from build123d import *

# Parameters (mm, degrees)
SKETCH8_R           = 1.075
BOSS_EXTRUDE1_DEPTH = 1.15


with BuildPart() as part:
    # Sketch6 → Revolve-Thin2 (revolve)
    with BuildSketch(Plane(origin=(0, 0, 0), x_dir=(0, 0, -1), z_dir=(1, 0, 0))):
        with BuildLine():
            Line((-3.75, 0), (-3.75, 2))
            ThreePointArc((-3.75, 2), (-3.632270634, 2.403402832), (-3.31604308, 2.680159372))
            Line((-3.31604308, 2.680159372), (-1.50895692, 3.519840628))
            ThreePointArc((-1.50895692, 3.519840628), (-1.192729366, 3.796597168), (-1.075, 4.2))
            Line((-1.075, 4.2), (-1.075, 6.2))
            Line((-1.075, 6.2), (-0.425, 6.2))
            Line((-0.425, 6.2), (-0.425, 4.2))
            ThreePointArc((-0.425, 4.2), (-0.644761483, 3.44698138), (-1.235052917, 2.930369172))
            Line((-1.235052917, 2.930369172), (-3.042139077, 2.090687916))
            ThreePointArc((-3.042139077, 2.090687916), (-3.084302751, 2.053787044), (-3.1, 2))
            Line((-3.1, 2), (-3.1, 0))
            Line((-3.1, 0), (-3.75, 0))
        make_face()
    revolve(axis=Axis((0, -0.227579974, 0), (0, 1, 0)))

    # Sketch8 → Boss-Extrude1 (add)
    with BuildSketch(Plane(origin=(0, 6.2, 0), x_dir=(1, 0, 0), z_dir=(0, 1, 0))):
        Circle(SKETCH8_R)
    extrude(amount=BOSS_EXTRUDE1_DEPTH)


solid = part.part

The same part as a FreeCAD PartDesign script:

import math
import FreeCAD as App
import Part
import Sketcher

doc = App.newDocument("Part")
params = doc.addObject("Spreadsheet::Sheet", "Params")
for row, (alias, value) in enumerate([
    ("sketch1_radius", "0.1 mm"),
    ("sketch1_radius2", "1.4 mm"),
    ("sketch1_width", "2 mm"),
    ("revolution_angle", "360 deg"),
    ("sketch2_diameter", "2.15 mm"),
    ("pad1_length", "1.15 mm"),
], start=1):
    params.set(f"A{row}", alias)
    params.set(f"B{row}", "=" + value)
    params.setAlias(f"B{row}", alias)

body = doc.addObject("PartDesign::Body", "Body")

# Sketch on YZ plane
sketch1 = body.newObject("Sketcher::SketchObject", "Sketch")
sketch1.AttachmentSupport = (doc.getObject("YZ_Plane"), [""])
sketch1.MapMode = "FlatFace"
sketch1.addGeometry(Part.LineSegment(App.Vector(2, 3.75, 0), App.Vector(0, 3.75, 0)), False)
sketch1.addGeometry(Part.LineSegment(App.Vector(0, 3.75, 0), App.Vector(0, 3.1, 0)), False)
sketch1.addGeometry(Part.LineSegment(App.Vector(0, 3.1, 0), App.Vector(2, 3.1, 0)), False)
sketch1.addGeometry(Part.ArcOfCircle(Part.Circle(App.Vector(2, 3, 0), App.Vector(0, 0, 1), 0.1), math.radians(25), math.radians(90)), False)
sketch1.addGeometry(Part.LineSegment(App.Vector(2.09, 3.04, 0), App.Vector(2.93, 1.24, 0)), False)
sketch1.addGeometry(Part.ArcOfCircle(Part.Circle(App.Vector(4.2, 1.83, 0), App.Vector(0, 0, 1), 1.4), math.radians(-155), math.radians(-90)), False)
sketch1.addGeometry(Part.LineSegment(App.Vector(4.2, 0.42, 0), App.Vector(6.2, 0.42, 0)), False)
sketch1.addGeometry(Part.LineSegment(App.Vector(6.2, 0.42, 0), App.Vector(6.2, 1.07, 0)), False)
sketch1.addGeometry(Part.LineSegment(App.Vector(6.2, 1.07, 0), App.Vector(4.2, 1.07, 0)), False)
sketch1.addGeometry(Part.ArcOfCircle(Part.Circle(App.Vector(4.2, 1.83, 0), App.Vector(0, 0, 1), 0.75), math.radians(-155), math.radians(-90)), False)
sketch1.addGeometry(Part.LineSegment(App.Vector(3.52, 1.51, 0), App.Vector(2.68, 3.32, 0)), False)
sketch1.addGeometry(Part.ArcOfCircle(Part.Circle(App.Vector(2, 3, 0), App.Vector(0, 0, 1), 0.75), math.radians(25), math.radians(90)), False)
sketch1.addConstraint(Sketcher.Constraint("Coincident", 0, 2, 1, 1))
sketch1.addConstraint(Sketcher.Constraint("Coincident", 1, 2, 2, 1))
sketch1.addConstraint(Sketcher.Constraint("Tangent", 2, 2, 3, 2))
sketch1.addConstraint(Sketcher.Constraint("Tangent", 3, 1, 4, 1))
sketch1.addConstraint(Sketcher.Constraint("Tangent", 4, 2, 5, 1))
sketch1.addConstraint(Sketcher.Constraint("Tangent", 5, 2, 6, 1))
sketch1.addConstraint(Sketcher.Constraint("Coincident", 6, 2, 7, 1))
sketch1.addConstraint(Sketcher.Constraint("Coincident", 7, 2, 8, 1))
sketch1.addConstraint(Sketcher.Constraint("Tangent", 8, 2, 9, 2))
sketch1.addConstraint(Sketcher.Constraint("Tangent", 9, 1, 10, 1))
sketch1.addConstraint(Sketcher.Constraint("Tangent", 10, 2, 11, 1))
sketch1.addConstraint(Sketcher.Constraint("Tangent", 11, 2, 0, 1))
sketch1.addConstraint(Sketcher.Constraint("Horizontal", 0))
sketch1.addConstraint(Sketcher.Constraint("Vertical", 1))
sketch1.addConstraint(Sketcher.Constraint("Horizontal", 2))
sketch1.addConstraint(Sketcher.Constraint("Horizontal", 6))
sketch1.addConstraint(Sketcher.Constraint("Vertical", 7))
sketch1.addConstraint(Sketcher.Constraint("Horizontal", 8))
sketch1.addConstraint(Sketcher.Constraint("Coincident", 9, 3, 5, 3))
sketch1.addConstraint(Sketcher.Constraint("Coincident", 11, 3, 3, 3))
sketch1.addConstraint(Sketcher.Constraint("Equal", 9, 11))
sketch1.addConstraint(Sketcher.Constraint("PointOnObject", 0, 2, -2))
sketch1.addConstraint(Sketcher.Constraint("Parallel", 4, 10))
sketch1.addConstraint(Sketcher.Constraint("Equal", 2, 6))
sketch1.addConstraint(Sketcher.Constraint("Radius", 3, 0.1))
sketch1.addConstraint(Sketcher.Constraint("Radius", 5, 1.4))
sketch1.addConstraint(Sketcher.Constraint("DistanceX", 0, 2, 0, 1, 2.0))
sketch1.addConstraint(Sketcher.Constraint("DistanceY", -1, 1, 3, 3, 3.0))
sketch1.addConstraint(Sketcher.Constraint("DistanceX", -1, 1, 5, 3, 4.2))
sketch1.addConstraint(Sketcher.Constraint("DistanceY", -1, 1, 5, 3, 1.825))
sketch1.setExpression("Constraints[24]", "Params.sketch1_radius")
sketch1.setExpression("Constraints[25]", "Params.sketch1_radius2")
sketch1.setExpression("Constraints[26]", "Params.sketch1_width")
revolution = body.newObject("PartDesign::Revolution", "Revolution")
revolution.Profile = sketch1
revolution.ReferenceAxis = (sketch1, ["H_Axis"])
revolution.setExpression("Angle", "Params.revolution_angle")

# Sketch on XZ plane
sketch2 = body.newObject("Sketcher::SketchObject", "Sketch001")
sketch2.AttachmentSupport = (doc.getObject("XZ_Plane"), [""])
sketch2.MapMode = "FlatFace"
sketch2.AttachmentOffset = App.Placement(App.Vector(0, 0, -6.2), App.Rotation())
sketch2.addGeometry(Part.Circle(App.Vector(0, 0, 0), App.Vector(0, 0, 1), 1.1), False)
sketch2.addConstraint(Sketcher.Constraint("Coincident", 0, 3, -1, 1))
sketch2.addConstraint(Sketcher.Constraint("Diameter", 0, 2.15))
sketch2.setExpression("Constraints[1]", "Params.sketch2_diameter")
pad1 = body.newObject("PartDesign::Pad", "Pad")
pad1.Profile = sketch2
pad1.setExpression("Length", "Params.pad1_length")
pad1.Reversed = True

doc.recompute()
